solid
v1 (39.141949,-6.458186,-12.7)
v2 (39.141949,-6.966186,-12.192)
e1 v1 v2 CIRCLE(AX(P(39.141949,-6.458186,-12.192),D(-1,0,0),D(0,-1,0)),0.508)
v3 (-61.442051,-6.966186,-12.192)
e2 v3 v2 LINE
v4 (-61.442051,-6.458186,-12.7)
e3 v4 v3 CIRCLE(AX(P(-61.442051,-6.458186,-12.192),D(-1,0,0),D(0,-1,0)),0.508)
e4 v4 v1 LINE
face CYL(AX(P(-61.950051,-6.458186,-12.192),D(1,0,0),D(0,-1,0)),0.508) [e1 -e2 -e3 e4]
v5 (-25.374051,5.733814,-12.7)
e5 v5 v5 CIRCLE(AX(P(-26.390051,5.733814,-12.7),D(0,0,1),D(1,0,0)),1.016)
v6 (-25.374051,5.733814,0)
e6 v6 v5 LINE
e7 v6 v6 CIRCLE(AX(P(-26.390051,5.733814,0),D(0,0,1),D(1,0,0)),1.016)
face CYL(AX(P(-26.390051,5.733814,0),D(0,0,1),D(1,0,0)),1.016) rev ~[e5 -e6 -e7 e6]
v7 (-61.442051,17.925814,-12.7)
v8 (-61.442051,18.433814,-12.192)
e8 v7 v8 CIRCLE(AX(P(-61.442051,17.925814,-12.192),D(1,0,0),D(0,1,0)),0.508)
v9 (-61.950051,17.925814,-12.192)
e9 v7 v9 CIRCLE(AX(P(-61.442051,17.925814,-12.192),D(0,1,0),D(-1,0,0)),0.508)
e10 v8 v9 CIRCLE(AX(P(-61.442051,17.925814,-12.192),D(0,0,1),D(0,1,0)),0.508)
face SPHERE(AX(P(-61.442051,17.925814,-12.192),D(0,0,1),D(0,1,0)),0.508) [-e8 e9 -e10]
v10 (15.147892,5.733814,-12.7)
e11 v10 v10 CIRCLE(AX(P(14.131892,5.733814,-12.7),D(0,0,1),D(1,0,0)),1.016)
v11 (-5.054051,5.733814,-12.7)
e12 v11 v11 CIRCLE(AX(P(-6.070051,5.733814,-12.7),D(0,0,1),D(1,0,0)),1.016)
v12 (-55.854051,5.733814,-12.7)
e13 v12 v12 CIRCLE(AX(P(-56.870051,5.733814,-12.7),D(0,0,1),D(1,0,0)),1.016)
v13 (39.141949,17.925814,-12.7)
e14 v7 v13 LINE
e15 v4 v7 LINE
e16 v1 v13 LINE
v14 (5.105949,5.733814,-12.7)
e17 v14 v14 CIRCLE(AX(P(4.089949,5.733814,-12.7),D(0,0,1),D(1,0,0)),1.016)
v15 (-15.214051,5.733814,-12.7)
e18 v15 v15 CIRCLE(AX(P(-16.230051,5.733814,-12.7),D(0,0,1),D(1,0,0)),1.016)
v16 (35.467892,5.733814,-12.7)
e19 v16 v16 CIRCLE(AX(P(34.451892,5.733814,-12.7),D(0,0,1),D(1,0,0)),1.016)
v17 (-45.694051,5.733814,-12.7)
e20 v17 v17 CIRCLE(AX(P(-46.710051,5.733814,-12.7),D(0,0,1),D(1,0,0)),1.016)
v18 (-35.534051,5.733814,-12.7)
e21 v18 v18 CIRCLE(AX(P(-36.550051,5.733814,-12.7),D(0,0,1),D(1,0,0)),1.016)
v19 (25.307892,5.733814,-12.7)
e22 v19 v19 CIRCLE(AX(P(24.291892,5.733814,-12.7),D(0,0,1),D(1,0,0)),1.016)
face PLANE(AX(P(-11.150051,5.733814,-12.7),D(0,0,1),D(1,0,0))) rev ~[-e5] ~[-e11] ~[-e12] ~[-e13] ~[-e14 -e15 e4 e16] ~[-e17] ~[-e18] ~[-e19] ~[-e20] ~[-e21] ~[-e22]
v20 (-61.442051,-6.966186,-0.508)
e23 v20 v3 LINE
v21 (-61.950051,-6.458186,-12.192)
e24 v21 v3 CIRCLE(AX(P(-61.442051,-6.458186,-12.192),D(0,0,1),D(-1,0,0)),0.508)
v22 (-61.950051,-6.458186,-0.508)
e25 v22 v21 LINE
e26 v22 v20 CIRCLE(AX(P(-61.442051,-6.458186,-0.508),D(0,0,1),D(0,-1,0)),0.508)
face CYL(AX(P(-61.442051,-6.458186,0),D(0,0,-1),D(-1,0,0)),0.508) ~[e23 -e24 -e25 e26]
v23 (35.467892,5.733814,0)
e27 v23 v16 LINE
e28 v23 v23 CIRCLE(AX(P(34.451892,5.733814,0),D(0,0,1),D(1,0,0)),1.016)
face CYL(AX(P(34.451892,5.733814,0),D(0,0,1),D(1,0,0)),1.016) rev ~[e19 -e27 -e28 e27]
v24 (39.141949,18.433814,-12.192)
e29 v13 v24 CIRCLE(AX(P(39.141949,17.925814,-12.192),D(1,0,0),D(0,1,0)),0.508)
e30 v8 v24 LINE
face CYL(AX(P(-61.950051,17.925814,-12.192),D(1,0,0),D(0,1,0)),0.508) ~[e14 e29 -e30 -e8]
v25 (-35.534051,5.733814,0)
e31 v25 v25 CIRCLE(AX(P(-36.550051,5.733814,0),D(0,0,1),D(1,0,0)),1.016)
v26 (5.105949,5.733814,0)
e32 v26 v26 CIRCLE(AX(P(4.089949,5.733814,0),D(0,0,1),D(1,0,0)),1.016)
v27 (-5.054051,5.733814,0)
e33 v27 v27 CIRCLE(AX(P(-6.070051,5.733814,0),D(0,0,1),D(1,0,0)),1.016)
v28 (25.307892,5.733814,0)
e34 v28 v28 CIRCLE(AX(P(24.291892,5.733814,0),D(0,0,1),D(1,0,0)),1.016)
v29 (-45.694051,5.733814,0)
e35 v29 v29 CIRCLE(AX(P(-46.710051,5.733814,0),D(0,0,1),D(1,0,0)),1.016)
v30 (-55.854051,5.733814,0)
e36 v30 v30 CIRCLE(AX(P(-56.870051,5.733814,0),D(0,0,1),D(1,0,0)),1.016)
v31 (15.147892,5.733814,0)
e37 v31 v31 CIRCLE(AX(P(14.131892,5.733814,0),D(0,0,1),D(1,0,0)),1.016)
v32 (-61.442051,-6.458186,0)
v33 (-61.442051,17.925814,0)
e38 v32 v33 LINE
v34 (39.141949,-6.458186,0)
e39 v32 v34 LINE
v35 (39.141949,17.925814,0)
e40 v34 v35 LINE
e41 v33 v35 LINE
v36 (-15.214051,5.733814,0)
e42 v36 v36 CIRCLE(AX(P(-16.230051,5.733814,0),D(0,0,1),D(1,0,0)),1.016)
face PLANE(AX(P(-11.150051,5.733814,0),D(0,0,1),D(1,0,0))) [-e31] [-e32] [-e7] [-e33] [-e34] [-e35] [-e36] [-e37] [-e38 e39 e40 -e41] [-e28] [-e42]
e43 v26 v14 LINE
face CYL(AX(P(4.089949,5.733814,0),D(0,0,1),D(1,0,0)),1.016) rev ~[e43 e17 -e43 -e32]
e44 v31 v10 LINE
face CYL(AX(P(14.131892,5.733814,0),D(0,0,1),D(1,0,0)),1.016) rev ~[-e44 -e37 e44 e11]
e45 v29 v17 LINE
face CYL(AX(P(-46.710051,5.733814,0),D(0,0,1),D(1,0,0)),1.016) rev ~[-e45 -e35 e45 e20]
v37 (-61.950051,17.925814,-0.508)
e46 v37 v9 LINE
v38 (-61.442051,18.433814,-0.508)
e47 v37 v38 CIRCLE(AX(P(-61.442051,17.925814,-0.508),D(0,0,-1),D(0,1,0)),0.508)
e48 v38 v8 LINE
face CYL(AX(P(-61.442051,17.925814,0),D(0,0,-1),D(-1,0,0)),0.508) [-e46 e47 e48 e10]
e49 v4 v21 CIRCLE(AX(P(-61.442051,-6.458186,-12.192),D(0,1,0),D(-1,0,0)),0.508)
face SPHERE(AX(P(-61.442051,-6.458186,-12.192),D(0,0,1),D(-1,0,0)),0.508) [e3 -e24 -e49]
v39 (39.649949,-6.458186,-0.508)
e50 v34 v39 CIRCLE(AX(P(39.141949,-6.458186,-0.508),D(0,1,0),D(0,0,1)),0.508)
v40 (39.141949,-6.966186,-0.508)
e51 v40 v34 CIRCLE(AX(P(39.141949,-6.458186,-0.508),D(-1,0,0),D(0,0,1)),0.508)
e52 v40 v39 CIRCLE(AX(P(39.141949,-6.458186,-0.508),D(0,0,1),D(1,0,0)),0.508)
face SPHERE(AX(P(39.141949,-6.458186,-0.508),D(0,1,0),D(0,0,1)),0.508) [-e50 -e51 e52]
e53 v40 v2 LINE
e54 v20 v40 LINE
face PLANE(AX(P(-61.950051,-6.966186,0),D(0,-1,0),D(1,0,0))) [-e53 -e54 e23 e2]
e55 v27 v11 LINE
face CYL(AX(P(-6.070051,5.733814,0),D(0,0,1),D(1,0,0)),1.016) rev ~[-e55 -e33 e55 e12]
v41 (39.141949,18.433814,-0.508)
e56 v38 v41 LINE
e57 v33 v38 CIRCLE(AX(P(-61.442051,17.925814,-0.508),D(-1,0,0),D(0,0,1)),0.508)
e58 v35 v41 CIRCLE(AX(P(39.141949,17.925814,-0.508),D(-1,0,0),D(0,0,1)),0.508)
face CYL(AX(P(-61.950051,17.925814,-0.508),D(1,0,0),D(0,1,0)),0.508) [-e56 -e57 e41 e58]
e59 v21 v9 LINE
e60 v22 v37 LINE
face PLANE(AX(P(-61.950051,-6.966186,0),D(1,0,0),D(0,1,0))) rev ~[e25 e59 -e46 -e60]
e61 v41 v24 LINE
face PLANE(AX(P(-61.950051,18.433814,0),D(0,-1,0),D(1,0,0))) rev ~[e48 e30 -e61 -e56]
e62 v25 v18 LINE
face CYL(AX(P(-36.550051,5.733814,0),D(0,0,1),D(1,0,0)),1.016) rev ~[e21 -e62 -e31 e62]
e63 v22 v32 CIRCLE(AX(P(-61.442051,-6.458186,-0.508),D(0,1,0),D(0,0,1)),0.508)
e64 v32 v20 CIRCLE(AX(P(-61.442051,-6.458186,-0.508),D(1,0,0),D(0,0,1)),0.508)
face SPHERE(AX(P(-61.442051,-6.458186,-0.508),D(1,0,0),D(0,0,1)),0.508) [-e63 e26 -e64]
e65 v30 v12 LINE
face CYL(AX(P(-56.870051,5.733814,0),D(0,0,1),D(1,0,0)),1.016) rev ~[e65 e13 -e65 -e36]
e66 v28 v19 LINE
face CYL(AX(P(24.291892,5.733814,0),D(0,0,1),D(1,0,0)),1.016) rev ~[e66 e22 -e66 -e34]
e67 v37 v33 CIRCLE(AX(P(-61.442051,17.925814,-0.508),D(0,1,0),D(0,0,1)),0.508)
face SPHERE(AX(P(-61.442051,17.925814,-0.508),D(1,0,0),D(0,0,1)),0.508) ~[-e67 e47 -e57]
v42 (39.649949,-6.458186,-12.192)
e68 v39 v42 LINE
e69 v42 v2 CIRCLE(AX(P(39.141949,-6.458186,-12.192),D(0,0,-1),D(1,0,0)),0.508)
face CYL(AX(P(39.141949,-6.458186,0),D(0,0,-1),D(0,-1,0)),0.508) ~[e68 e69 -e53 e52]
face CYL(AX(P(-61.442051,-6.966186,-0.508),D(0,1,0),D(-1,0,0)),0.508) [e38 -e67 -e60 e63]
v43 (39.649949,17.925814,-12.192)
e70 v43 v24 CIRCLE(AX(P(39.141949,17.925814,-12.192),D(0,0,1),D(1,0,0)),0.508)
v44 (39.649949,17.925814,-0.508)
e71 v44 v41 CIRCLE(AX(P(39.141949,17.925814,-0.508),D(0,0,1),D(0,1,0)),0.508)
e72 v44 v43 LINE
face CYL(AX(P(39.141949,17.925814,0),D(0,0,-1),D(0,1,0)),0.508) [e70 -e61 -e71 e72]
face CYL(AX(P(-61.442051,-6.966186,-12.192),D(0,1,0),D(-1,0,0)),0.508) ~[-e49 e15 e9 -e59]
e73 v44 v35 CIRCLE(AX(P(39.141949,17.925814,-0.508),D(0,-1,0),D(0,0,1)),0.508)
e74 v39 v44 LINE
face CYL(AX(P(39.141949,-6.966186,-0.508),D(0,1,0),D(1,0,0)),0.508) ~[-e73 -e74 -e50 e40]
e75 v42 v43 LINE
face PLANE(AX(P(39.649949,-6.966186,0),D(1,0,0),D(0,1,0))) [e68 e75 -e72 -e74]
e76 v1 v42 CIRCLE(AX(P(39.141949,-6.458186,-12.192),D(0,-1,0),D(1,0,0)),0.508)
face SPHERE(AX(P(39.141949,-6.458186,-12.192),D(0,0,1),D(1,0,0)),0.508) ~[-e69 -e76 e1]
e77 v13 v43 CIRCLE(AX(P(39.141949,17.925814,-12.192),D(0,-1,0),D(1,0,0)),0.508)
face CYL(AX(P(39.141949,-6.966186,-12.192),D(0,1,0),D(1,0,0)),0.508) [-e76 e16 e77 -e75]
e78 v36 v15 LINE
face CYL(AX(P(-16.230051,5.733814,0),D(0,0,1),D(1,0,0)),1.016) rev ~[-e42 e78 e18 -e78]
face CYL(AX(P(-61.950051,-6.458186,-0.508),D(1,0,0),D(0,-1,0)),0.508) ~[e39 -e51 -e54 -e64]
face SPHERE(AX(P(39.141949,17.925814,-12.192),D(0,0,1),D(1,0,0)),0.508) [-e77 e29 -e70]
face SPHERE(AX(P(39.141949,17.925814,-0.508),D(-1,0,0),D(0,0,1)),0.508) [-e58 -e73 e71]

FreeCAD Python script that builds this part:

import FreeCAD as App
import Part
import Sketcher

V = App.Vector
Q = App.Units.Quantity


def edges_at(feature, points):
    """Names of the edges that pass closest to the given points."""
    edges = feature.Shape.Edges
    near = lambda p: min(range(len(edges)), key=lambda i: edges[i].distToShape(Part.Vertex(*p))[0])
    return sorted({f"Edge{near(p) + 1}" for p in points})


def add_polygon(sketch, points):
    """Adds a closed chain of lines whose ends are joined by coincident constraints."""
    first, n = sketch.GeometryCount, len(points)
    for a, b in zip(points, points[1:] + points[:1]):
        sketch.addGeometry(Part.LineSegment(App.Vector(*a, 0), App.Vector(*b, 0)), False)
    for i in range(n):
        sketch.addConstraint(Sketcher.Constraint("Coincident", first + i, 2, first + (i + 1) % n, 1))

doc = App.newDocument("Part")
body = doc.addObject("PartDesign::Body", "Body")

sketch1 = body.newObject("Sketcher::SketchObject", "Sketch")
sketch1.AttachmentSupport = (doc.getObject("XY_Plane"), [""])
sketch1.MapMode = "FlatFace"
add_polygon(sketch1, [(-62, 18.4), (-62, -7), (39.6, -7), (39.6, 18.4)])
sketch1.addGeometry(Part.Circle(V(-56.9, 5.7, 0), V(0, 0, 1), 1), False)
sketch1.addGeometry(Part.Circle(V(-46.7, 5.7, 0), V(0, 0, 1), 1), False)
sketch1.addGeometry(Part.Circle(V(-36.6, 5.7, 0), V(0, 0, 1), 1), False)
sketch1.addGeometry(Part.Circle(V(-26.4, 5.7, 0), V(0, 0, 1), 1), False)
sketch1.addGeometry(Part.Circle(V(-16.2, 5.7, 0), V(0, 0, 1), 1), False)
sketch1.addGeometry(Part.Circle(V(-6.1, 5.7, 0), V(0, 0, 1), 1), False)
sketch1.addGeometry(Part.Circle(V(4.1, 5.7, 0), V(0, 0, 1), 1), False)
sketch1.addGeometry(Part.Circle(V(14.1, 5.7, 0), V(0, 0, 1), 1), False)
sketch1.addGeometry(Part.Circle(V(24.3, 5.7, 0), V(0, 0, 1), 1), False)
sketch1.addGeometry(Part.Circle(V(34.5, 5.7, 0), V(0, 0, 1), 1), False)
sketch1.addConstraint(Sketcher.Constraint("Vertical", 0))
sketch1.addConstraint(Sketcher.Constraint("Horizontal", 1))
sketch1.addConstraint(Sketcher.Constraint("Vertical", 2))
sketch1.addConstraint(Sketcher.Constraint("Horizontal", 3))
sketch1.addConstraint(Sketcher.Constraint("Equal", 4, 5))
sketch1.addConstraint(Sketcher.Constraint("Equal", 5, 6))
sketch1.addConstraint(Sketcher.Constraint("Equal", 6, 7))
sketch1.addConstraint(Sketcher.Constraint("Equal", 7, 8))
sketch1.addConstraint(Sketcher.Constraint("Equal", 8, 9))
sketch1.addConstraint(Sketcher.Constraint("Equal", 9, 10))
sketch1.addConstraint(Sketcher.Constraint("Equal", 10, 11))
sketch1.addConstraint(Sketcher.Constraint("Equal", 11, 12))
sketch1.addConstraint(Sketcher.Constraint("Equal", 12, 13))
sketch1.addConstraint(Sketcher.Constraint("Horizontal", 4, 3, 5, 3))
sketch1.addConstraint(Sketcher.Constraint("Horizontal", 5, 3, 6, 3))
sketch1.addConstraint(Sketcher.Constraint("Horizontal", 6, 3, 7, 3))
sketch1.addConstraint(Sketcher.Constraint("Horizontal", 7, 3, 8, 3))
sketch1.addConstraint(Sketcher.Constraint("Horizontal", 8, 3, 9, 3))
sketch1.addConstraint(Sketcher.Constraint("Horizontal", 9, 3, 10, 3))
sketch1.addConstraint(Sketcher.Constraint("Horizontal", 10, 3, 11, 3))
sketch1.addConstraint(Sketcher.Constraint("Horizontal", 11, 3, 12, 3))
sketch1.addConstraint(Sketcher.Constraint("Horizontal", 12, 3, 13, 3))
sketch1.addConstraint(Sketcher.Constraint("Diameter", 4, Q("0.08 in")))
sketch1.addConstraint(Sketcher.Constraint("DistanceX", 1, 1, 1, 2, Q("4 in")))
sketch1.addConstraint(Sketcher.Constraint("DistanceY", 0, 2, 0, 1, Q("1 in")))
sketch1.addConstraint(Sketcher.Constraint("DistanceX", 4, 3, 9, 3, Q("2 in")))
sketch1.addConstraint(Sketcher.Constraint("DistanceX", 5, 3, 10, 3, Q("2 in")))
sketch1.addConstraint(Sketcher.Constraint("DistanceX", 0, 2, 6, 3, Q("1 in")))
sketch1.addConstraint(Sketcher.Constraint("DistanceX", 4, 3, 5, 3, Q("0.4 in")))
sketch1.addConstraint(Sketcher.Constraint("DistanceX", 5, 3, 6, 3, Q("0.4 in")))
sketch1.addConstraint(Sketcher.Constraint("DistanceX", 6, 3, 7, 3, Q("0.4 in")))
sketch1.addConstraint(Sketcher.Constraint("DistanceX", 7, 3, 8, 3, Q("0.4 in")))
sketch1.addConstraint(Sketcher.Constraint("DistanceX", 11, 3, 12, 3, Q("0.4 in")))
sketch1.addConstraint(Sketcher.Constraint("DistanceX", 12, 3, 13, 3, Q("0.4 in")))
sketch1.addConstraint(Sketcher.Constraint("DistanceY", 0, 2, 4, 3, Q("0.5 in")))
sketch1.addConstraint(Sketcher.Constraint("DistanceX", 4, 3, -1, 1, 56.870051))
sketch1.addConstraint(Sketcher.Constraint("DistanceY", -1, 1, 4, 3, 5.733814))
sketch1.addConstraint(Sketcher.Constraint("DistanceX", -1, 1, 11, 3, 14.131892))
pad1 = body.newObject("PartDesign::Pad", "Pad")
pad1.Profile = sketch1
pad1.Length = Q("0.5 in")
pad1.Reversed = True
doc.recompute()

fillet = body.newObject("PartDesign::Fillet", "Fillet")
fillet.Base = (pad1, edges_at(pad1, [
    (-11.15, 18.434, 0),
    (39.65, 5.734, 0),
    (-11.15, -6.966, 0),
    (-61.95, 5.734, 0),
    (-61.95, -6.966, -6.35),
    (39.65, -6.966, -6.35),
    (39.65, 18.434, -6.35),
    (-61.95, 18.434, -6.35),
    (39.65, 5.734, -12.7),
    (-11.15, 18.434, -12.7),
    (-61.95, 5.734, -12.7),
    (-11.15, -6.966, -12.7),
]))
fillet.Radius = Q("0.02 in")

doc.recompute()
